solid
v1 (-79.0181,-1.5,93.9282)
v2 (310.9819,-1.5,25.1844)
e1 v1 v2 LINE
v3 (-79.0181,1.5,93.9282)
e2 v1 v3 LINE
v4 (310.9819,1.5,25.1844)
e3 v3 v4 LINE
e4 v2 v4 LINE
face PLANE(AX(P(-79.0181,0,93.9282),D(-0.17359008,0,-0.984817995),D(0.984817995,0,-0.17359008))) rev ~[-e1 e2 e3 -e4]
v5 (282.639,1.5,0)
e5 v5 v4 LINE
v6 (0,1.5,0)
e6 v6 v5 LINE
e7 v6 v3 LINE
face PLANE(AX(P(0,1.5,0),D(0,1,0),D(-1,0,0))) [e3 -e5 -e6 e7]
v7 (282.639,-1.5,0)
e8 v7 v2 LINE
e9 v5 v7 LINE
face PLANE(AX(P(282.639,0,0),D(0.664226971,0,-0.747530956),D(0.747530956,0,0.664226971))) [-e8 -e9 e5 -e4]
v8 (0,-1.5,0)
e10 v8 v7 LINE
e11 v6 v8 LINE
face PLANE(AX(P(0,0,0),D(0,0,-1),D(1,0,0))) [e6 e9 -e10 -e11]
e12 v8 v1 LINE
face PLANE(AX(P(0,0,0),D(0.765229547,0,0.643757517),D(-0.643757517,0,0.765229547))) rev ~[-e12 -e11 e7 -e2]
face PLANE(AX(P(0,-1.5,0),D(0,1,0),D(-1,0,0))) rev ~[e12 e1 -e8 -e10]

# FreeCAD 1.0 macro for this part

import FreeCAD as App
import Part
import Sketcher

V = App.Vector
Q = App.Units.Quantity


def add_polygon(sketch, points):
    """Adds a closed chain of lines whose ends are joined by coincident constraints."""
    first, n = sketch.GeometryCount, len(points)
    for a, b in zip(points, points[1:] + points[:1]):
        sketch.addGeometry(Part.LineSegment(App.Vector(*a, 0), App.Vector(*b, 0)), False)
    for i in range(n):
        sketch.addConstraint(Sketcher.Constraint("Coincident", first + i, 2, first + (i + 1) % n, 1))

doc = App.newDocument("Part")
body = doc.addObject("PartDesign::Body", "Body")

sketch1 = body.newObject("Sketcher::SketchObject", "Sketch")
sketch1.AttachmentSupport = (doc.getObject("XZ_Plane"), [""])
sketch1.MapMode = "FlatFace"
add_polygon(sketch1, [(0, 0), (-79.0181, 93.9282), (310.9819, 25.1844), (282.639, 0)])
sketch1.addConstraint(Sketcher.Constraint("Horizontal", 3))
sketch1.addConstraint(Sketcher.Constraint("Coincident", 3, 2, -1, 1))
sketch1.addConstraint(Sketcher.Constraint("DistanceX", 0, 2, 1, 2, Q("390 mm")))
sketch1.addConstraint(Sketcher.Constraint("DistanceX", 3, 2, 3, 1, Q("282.639 mm")))
sketch1.addConstraint(Sketcher.Constraint("DistanceX", 0, 2, -1, 1, Q("79.018 mm")))
sketch1.addConstraint(Sketcher.Constraint("Distance", 0, Q("122.7451 mm")))
sketch1.addConstraint(Sketcher.Constraint("Distance", 1, Q("396.0123 mm")))
pad1 = body.newObject("PartDesign::Pad", "Pad")
pad1.Profile = sketch1
pad1.Length = 3
pad1.Midplane = True

doc.recompute()
